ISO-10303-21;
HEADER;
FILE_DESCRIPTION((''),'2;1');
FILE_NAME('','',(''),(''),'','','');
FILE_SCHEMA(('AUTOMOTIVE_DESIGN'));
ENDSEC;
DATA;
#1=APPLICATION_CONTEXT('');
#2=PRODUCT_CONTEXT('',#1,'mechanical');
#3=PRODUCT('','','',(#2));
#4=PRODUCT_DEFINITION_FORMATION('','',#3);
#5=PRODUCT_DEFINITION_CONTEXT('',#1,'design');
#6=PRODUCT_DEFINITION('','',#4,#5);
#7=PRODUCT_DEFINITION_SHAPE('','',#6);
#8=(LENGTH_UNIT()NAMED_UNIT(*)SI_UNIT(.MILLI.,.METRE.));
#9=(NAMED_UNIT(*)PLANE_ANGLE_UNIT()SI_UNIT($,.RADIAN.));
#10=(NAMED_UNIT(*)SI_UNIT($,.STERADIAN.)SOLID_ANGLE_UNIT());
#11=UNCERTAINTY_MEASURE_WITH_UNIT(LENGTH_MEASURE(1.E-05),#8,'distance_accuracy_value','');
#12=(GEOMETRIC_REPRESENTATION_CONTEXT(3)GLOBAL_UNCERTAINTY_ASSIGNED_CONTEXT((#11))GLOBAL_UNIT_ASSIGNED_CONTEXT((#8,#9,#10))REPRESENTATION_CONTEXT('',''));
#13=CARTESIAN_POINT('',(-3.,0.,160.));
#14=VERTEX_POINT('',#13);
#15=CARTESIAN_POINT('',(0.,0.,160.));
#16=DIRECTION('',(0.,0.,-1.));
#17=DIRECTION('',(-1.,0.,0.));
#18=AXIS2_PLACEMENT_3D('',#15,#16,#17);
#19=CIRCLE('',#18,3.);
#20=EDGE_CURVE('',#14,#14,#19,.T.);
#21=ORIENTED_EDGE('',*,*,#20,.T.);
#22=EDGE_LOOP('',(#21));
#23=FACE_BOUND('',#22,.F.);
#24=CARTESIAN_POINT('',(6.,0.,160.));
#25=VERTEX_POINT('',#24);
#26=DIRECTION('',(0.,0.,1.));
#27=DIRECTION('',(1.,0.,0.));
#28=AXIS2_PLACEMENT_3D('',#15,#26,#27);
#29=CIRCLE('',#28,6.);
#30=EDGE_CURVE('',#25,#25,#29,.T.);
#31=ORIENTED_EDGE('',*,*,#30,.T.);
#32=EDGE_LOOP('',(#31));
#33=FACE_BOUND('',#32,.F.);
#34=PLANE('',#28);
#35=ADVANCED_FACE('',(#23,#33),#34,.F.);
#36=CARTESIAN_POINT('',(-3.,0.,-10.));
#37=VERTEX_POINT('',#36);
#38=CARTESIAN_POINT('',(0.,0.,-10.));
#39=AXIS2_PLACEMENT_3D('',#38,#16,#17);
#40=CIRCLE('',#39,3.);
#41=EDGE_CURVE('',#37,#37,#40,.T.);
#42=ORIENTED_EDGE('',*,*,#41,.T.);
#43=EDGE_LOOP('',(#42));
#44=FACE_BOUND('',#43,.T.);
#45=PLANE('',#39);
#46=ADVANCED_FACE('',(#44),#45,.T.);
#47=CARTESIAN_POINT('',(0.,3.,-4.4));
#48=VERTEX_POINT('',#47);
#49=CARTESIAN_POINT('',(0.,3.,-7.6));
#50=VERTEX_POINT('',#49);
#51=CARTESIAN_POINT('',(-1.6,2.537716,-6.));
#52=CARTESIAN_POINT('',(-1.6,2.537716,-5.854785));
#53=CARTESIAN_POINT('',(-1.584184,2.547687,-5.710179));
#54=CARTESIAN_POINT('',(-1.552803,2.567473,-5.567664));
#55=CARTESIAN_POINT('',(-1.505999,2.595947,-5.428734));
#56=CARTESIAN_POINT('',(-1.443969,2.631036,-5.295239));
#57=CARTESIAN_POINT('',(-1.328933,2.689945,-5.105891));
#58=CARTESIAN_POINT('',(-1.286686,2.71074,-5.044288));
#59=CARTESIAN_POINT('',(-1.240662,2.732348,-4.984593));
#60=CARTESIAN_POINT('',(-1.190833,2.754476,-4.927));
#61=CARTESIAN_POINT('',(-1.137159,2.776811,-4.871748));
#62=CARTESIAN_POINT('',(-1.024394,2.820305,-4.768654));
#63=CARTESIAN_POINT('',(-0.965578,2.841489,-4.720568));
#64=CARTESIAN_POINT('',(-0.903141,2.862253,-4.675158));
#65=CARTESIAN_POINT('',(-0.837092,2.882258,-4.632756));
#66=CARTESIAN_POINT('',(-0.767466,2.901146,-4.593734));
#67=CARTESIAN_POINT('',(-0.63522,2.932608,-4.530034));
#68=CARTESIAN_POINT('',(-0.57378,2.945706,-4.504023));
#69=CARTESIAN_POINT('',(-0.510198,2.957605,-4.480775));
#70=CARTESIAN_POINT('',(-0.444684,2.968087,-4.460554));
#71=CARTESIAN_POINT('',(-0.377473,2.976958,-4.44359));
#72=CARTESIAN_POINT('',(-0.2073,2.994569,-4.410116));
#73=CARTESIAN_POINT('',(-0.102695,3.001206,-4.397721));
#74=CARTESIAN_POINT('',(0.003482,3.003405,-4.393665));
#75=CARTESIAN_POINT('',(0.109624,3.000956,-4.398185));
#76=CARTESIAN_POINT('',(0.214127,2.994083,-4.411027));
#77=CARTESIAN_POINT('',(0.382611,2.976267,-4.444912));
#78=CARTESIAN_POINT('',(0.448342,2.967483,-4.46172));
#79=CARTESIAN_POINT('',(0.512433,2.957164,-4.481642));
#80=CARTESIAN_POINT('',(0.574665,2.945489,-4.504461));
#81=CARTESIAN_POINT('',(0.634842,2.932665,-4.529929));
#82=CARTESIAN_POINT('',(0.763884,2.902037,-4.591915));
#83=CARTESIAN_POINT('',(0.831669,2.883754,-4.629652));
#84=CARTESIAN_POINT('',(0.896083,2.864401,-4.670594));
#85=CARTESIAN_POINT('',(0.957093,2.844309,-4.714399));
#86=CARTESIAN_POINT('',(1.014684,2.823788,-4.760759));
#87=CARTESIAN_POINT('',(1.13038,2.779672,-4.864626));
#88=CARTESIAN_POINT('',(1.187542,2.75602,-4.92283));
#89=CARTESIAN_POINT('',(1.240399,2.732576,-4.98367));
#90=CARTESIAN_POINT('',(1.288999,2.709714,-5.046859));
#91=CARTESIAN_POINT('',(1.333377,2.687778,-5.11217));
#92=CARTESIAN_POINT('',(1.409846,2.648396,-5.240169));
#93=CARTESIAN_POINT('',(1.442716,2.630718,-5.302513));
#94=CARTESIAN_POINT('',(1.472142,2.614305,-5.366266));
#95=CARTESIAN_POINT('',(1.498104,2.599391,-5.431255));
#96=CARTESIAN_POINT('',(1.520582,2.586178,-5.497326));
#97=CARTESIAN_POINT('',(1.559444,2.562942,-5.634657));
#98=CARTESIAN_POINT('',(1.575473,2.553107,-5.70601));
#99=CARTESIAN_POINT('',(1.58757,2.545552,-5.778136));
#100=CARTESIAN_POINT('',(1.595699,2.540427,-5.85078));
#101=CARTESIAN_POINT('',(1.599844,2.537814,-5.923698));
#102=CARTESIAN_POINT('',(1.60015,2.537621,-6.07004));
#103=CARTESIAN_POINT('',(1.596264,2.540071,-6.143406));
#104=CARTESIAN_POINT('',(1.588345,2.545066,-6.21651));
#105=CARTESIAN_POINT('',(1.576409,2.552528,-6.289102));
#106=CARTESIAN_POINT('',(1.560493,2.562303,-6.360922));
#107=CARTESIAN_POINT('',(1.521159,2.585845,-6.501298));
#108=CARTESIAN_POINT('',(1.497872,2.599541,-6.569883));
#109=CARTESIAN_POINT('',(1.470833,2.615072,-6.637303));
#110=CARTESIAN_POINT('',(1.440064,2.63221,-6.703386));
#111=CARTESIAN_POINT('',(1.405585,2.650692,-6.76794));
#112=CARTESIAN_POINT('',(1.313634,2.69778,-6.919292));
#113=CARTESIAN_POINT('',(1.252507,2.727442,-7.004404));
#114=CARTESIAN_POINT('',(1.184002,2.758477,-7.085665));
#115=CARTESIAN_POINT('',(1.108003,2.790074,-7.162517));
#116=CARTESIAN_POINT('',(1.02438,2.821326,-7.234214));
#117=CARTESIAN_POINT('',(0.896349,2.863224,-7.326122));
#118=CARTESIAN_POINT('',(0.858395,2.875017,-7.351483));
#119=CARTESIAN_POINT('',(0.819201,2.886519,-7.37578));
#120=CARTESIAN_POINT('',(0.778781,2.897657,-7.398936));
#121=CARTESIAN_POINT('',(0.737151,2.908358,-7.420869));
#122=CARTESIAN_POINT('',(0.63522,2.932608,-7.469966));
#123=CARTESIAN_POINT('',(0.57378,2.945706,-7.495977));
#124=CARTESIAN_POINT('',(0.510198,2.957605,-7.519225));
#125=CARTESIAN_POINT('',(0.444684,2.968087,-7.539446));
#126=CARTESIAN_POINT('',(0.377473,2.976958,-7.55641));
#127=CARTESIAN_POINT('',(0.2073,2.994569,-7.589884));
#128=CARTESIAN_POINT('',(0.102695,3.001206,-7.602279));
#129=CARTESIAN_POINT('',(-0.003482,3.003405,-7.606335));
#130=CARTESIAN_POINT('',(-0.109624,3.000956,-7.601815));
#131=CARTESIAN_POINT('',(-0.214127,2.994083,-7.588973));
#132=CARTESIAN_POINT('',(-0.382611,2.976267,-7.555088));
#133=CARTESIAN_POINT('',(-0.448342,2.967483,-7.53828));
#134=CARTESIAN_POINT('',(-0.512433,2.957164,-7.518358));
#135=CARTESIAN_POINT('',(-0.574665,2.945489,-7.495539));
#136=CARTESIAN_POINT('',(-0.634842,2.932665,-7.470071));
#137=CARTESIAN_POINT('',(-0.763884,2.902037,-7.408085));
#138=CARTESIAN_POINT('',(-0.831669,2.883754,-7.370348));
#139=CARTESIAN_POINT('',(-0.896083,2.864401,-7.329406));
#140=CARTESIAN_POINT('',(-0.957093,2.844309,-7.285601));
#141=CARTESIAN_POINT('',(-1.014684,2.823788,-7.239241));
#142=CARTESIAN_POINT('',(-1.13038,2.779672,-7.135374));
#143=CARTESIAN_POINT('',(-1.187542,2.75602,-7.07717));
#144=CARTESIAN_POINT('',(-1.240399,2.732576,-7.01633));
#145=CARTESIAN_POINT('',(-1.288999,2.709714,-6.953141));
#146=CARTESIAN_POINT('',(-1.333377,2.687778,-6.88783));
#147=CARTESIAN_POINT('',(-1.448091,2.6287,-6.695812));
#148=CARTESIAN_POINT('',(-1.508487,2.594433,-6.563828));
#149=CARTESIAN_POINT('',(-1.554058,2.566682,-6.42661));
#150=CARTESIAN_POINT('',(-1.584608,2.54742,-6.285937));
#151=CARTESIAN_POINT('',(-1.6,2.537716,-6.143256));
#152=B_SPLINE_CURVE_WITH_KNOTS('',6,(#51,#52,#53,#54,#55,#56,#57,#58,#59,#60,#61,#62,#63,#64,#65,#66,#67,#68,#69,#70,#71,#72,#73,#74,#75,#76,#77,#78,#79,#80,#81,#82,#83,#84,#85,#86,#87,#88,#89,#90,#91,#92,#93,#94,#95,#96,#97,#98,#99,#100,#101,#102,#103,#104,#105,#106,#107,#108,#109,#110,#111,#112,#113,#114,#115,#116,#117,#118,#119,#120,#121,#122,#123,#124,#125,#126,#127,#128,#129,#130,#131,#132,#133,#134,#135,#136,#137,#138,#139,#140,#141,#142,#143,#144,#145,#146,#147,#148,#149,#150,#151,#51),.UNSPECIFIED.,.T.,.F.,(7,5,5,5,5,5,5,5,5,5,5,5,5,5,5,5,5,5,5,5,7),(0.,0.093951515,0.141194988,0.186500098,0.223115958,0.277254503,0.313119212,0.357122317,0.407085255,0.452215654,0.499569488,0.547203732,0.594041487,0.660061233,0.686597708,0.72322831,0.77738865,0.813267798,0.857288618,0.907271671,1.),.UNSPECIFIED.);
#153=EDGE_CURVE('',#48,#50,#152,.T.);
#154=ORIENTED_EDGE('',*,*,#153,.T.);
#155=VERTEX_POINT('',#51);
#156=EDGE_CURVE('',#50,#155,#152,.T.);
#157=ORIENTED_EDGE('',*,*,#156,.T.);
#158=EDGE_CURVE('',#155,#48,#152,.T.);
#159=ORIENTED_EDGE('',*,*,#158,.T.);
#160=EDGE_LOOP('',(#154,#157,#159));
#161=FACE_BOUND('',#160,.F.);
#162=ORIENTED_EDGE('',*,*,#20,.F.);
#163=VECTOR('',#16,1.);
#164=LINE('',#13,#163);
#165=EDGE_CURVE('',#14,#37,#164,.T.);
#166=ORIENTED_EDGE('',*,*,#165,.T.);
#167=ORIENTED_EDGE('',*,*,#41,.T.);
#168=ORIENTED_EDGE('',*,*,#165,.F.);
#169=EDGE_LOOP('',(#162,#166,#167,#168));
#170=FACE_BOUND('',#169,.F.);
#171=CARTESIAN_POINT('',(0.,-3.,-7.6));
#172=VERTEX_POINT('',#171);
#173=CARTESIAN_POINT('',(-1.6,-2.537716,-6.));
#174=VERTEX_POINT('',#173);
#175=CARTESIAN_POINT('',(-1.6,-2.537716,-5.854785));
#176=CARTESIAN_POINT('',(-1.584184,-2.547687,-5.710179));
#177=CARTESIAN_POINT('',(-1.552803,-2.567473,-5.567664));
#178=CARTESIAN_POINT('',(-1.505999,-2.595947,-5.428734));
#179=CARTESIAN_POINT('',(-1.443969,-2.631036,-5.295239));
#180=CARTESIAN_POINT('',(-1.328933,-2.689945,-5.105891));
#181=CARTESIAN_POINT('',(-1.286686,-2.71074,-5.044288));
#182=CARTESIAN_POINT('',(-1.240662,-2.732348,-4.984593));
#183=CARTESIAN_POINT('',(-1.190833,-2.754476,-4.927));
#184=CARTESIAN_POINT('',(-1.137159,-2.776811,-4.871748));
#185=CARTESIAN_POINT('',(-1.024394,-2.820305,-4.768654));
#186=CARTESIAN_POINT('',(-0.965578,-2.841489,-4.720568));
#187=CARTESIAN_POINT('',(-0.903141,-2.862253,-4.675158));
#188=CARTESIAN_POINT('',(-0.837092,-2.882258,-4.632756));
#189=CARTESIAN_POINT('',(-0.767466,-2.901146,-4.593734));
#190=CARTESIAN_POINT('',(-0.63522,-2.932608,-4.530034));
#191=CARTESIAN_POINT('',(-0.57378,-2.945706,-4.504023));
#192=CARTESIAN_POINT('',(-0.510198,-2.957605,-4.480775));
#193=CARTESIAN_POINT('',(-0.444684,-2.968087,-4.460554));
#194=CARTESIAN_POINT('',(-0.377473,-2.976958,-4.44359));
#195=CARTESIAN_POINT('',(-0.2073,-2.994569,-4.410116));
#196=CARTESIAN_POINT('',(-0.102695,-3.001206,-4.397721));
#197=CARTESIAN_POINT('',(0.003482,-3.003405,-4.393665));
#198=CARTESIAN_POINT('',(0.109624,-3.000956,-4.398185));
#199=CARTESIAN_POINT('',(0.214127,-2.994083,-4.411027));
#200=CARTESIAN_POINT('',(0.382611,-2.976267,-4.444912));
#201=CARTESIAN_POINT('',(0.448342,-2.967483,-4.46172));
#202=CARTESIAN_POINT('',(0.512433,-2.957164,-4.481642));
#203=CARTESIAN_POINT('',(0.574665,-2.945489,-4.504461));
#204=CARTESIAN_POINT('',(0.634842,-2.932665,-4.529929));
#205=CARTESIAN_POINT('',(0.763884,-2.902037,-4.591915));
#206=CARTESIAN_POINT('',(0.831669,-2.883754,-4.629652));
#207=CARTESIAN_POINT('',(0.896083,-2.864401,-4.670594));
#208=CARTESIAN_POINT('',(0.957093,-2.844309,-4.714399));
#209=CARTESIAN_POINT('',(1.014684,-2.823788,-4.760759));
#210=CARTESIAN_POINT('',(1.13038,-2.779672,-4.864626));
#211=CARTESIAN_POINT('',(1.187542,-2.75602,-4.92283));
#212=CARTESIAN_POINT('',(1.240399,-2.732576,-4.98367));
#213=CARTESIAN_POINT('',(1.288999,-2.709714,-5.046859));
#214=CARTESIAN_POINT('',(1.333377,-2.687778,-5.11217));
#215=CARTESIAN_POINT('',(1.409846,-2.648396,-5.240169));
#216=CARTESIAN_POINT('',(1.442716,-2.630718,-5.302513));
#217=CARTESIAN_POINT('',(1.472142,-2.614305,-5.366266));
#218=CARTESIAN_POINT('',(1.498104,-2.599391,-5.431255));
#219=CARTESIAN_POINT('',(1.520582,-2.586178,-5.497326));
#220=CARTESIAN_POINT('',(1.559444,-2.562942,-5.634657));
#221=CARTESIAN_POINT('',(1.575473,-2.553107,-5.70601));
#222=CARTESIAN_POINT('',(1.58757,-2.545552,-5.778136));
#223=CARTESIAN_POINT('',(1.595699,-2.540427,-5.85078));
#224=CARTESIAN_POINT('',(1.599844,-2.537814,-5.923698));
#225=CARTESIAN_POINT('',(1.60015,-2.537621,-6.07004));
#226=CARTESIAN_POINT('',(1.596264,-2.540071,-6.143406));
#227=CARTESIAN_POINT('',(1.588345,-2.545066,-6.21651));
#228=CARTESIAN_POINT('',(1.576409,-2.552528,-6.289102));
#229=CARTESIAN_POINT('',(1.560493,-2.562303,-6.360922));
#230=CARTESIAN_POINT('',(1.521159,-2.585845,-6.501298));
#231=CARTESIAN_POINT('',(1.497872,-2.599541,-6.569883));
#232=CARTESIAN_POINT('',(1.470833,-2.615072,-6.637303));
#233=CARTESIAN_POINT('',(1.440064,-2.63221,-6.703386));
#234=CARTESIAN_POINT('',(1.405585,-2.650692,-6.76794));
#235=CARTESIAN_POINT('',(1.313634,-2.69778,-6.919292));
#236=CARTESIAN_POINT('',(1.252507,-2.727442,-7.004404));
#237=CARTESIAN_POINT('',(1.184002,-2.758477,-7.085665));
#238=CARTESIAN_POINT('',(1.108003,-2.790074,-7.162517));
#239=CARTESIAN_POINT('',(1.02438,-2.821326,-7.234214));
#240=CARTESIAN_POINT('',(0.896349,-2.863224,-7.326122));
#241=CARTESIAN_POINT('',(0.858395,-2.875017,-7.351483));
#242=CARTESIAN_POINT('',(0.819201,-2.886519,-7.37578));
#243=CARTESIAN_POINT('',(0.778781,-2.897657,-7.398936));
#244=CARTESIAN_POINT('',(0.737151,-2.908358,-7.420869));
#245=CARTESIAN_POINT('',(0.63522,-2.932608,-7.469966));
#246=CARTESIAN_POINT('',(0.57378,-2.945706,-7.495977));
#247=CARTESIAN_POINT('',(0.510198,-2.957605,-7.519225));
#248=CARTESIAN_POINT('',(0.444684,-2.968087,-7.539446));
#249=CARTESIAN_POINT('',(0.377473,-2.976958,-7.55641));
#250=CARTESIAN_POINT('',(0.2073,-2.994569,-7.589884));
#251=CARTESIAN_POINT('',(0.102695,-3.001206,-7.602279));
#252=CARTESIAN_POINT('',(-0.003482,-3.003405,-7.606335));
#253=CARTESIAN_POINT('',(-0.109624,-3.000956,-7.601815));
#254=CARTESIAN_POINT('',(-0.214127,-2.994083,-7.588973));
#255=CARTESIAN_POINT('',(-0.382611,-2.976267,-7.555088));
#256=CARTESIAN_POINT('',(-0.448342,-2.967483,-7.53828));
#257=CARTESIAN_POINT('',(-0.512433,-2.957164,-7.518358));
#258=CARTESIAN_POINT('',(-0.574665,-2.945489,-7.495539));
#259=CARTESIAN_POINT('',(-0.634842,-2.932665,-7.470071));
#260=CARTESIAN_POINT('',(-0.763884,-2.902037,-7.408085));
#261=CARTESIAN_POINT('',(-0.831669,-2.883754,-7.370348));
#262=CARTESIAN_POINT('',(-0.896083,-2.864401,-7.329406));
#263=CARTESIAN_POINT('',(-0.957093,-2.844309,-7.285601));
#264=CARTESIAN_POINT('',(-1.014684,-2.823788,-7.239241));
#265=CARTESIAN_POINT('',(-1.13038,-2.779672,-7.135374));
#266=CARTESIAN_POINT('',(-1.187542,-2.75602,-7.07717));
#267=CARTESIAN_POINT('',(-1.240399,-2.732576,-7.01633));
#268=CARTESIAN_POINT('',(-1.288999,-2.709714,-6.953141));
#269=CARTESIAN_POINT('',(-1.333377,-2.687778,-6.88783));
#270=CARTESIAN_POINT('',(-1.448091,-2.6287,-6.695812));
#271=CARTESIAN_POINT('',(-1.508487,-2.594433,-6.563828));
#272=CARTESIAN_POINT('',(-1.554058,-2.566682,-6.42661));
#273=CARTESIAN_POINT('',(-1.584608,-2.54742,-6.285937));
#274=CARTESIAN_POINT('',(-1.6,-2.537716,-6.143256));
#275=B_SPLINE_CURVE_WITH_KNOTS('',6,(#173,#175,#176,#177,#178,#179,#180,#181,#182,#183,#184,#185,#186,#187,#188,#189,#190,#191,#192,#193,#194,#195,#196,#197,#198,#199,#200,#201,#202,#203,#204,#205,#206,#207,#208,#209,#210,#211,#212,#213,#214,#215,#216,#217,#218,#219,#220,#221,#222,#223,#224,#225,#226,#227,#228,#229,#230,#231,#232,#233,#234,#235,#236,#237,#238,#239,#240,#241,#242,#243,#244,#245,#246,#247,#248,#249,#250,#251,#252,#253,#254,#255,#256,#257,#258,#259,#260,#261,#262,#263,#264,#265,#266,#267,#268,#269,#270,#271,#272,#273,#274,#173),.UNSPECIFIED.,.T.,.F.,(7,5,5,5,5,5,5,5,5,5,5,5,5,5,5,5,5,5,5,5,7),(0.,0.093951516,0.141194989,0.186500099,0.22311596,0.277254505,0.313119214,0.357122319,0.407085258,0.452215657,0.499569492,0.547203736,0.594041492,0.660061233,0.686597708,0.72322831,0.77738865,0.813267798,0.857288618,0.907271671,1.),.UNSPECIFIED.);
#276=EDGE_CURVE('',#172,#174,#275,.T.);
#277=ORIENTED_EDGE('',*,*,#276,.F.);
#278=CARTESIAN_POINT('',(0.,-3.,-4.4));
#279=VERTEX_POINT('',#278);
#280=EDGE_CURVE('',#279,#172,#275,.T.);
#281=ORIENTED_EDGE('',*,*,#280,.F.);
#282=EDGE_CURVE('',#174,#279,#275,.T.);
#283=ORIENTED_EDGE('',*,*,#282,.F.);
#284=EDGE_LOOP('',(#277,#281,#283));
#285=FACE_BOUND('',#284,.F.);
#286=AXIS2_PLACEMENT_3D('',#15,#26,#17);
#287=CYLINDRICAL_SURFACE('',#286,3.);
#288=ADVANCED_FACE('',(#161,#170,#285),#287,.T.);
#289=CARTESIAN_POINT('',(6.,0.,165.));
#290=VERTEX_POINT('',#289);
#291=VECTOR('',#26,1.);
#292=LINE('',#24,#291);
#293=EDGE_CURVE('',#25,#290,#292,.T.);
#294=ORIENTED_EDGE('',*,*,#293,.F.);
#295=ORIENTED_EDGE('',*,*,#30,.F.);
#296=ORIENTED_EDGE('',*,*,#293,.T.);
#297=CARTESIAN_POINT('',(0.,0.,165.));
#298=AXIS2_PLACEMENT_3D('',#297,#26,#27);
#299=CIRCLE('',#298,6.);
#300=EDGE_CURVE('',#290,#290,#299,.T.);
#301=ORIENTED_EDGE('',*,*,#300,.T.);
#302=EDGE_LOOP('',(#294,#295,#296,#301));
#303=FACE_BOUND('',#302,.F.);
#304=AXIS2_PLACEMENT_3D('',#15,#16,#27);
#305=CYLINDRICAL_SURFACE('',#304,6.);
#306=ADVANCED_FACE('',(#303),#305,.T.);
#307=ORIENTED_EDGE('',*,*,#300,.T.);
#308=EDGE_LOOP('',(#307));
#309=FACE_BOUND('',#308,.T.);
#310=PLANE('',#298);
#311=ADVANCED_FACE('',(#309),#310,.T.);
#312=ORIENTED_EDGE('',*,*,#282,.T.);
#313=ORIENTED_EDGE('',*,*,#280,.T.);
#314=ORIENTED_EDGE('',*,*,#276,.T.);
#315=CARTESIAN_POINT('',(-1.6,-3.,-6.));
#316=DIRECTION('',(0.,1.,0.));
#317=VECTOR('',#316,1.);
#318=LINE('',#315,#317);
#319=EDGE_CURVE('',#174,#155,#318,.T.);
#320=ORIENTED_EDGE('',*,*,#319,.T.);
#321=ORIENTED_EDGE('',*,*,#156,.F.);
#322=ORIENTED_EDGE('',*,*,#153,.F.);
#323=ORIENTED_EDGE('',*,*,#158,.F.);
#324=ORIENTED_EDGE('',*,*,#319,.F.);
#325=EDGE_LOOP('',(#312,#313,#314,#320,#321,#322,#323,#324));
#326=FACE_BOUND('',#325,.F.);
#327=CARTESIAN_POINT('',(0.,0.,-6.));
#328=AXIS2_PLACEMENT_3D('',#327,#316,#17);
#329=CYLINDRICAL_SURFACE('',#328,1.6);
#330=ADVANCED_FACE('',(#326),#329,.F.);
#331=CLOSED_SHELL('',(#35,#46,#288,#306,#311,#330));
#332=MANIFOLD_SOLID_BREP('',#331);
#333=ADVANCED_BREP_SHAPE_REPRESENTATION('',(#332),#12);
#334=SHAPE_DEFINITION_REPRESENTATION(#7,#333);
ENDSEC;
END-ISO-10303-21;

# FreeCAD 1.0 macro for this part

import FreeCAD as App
import Part
import Sketcher

V = App.Vector

doc = App.newDocument("Part")
body = doc.addObject("PartDesign::Body", "Body")

# Sketch on XY plane
sketch1 = doc.addObject("Sketcher::SketchObject", "Sketch")
body.addObject(sketch1)
sketch1.AttachmentSupport = (doc.XY_Plane, [""])
sketch1.MapMode = "FlatFace"
sketch1.AttachmentOffset = App.Placement(V(0, 0, 160), App.Rotation())
sketch1.addGeometry(Part.Circle(V(0, 0, 0), V(0, 0, 1), 6), False)
sketch1.addConstraint([
    Sketcher.Constraint("Coincident", 0, 3, -1, 1),
    Sketcher.Constraint("Diameter", 0, 12.0),
])
pad1 = doc.addObject("PartDesign::Pad", "Pad")
body.addObject(pad1)
pad1.Profile = sketch1
pad1.Length = 5

# Sketch on XY plane
sketch2 = doc.addObject("Sketcher::SketchObject", "Sketch001")
body.addObject(sketch2)
sketch2.AttachmentSupport = (doc.XY_Plane, [""])
sketch2.MapMode = "FlatFace"
sketch2.AttachmentOffset = App.Placement(V(0, 0, 160), App.Rotation())
sketch2.addGeometry(Part.Circle(V(0, 0, 0), V(0, 0, 1), 3), False)
sketch2.addConstraint([
    Sketcher.Constraint("Coincident", 0, 3, -1, 1),
    Sketcher.Constraint("Diameter", 0, 6.0),
])
pad2 = doc.addObject("PartDesign::Pad", "Pad001")
body.addObject(pad2)
pad2.Profile = sketch2
pad2.Length = 170
pad2.Reversed = True

# Sketch on XZ plane
sketch3 = doc.addObject("Sketcher::SketchObject", "Sketch002")
body.addObject(sketch3)
sketch3.AttachmentSupport = (doc.XZ_Plane, [""])
sketch3.MapMode = "FlatFace"
sketch3.addGeometry(Part.Circle(V(0, -6, 0), V(0, 0, 1), 1.6), False)
sketch3.addConstraint([
    Sketcher.Constraint("PointOnObject", 0, 3, -2),
    Sketcher.Constraint("Diameter", 0, 3.2),
    Sketcher.Constraint("DistanceY", 0, 3, -1, 1, 6.0),
])
pocket1 = doc.addObject("PartDesign::Pocket", "Pocket")
body.addObject(pocket1)
pocket1.Profile = sketch3
pocket1.Length = 6
pocket1.Midplane = True

doc.recompute()
